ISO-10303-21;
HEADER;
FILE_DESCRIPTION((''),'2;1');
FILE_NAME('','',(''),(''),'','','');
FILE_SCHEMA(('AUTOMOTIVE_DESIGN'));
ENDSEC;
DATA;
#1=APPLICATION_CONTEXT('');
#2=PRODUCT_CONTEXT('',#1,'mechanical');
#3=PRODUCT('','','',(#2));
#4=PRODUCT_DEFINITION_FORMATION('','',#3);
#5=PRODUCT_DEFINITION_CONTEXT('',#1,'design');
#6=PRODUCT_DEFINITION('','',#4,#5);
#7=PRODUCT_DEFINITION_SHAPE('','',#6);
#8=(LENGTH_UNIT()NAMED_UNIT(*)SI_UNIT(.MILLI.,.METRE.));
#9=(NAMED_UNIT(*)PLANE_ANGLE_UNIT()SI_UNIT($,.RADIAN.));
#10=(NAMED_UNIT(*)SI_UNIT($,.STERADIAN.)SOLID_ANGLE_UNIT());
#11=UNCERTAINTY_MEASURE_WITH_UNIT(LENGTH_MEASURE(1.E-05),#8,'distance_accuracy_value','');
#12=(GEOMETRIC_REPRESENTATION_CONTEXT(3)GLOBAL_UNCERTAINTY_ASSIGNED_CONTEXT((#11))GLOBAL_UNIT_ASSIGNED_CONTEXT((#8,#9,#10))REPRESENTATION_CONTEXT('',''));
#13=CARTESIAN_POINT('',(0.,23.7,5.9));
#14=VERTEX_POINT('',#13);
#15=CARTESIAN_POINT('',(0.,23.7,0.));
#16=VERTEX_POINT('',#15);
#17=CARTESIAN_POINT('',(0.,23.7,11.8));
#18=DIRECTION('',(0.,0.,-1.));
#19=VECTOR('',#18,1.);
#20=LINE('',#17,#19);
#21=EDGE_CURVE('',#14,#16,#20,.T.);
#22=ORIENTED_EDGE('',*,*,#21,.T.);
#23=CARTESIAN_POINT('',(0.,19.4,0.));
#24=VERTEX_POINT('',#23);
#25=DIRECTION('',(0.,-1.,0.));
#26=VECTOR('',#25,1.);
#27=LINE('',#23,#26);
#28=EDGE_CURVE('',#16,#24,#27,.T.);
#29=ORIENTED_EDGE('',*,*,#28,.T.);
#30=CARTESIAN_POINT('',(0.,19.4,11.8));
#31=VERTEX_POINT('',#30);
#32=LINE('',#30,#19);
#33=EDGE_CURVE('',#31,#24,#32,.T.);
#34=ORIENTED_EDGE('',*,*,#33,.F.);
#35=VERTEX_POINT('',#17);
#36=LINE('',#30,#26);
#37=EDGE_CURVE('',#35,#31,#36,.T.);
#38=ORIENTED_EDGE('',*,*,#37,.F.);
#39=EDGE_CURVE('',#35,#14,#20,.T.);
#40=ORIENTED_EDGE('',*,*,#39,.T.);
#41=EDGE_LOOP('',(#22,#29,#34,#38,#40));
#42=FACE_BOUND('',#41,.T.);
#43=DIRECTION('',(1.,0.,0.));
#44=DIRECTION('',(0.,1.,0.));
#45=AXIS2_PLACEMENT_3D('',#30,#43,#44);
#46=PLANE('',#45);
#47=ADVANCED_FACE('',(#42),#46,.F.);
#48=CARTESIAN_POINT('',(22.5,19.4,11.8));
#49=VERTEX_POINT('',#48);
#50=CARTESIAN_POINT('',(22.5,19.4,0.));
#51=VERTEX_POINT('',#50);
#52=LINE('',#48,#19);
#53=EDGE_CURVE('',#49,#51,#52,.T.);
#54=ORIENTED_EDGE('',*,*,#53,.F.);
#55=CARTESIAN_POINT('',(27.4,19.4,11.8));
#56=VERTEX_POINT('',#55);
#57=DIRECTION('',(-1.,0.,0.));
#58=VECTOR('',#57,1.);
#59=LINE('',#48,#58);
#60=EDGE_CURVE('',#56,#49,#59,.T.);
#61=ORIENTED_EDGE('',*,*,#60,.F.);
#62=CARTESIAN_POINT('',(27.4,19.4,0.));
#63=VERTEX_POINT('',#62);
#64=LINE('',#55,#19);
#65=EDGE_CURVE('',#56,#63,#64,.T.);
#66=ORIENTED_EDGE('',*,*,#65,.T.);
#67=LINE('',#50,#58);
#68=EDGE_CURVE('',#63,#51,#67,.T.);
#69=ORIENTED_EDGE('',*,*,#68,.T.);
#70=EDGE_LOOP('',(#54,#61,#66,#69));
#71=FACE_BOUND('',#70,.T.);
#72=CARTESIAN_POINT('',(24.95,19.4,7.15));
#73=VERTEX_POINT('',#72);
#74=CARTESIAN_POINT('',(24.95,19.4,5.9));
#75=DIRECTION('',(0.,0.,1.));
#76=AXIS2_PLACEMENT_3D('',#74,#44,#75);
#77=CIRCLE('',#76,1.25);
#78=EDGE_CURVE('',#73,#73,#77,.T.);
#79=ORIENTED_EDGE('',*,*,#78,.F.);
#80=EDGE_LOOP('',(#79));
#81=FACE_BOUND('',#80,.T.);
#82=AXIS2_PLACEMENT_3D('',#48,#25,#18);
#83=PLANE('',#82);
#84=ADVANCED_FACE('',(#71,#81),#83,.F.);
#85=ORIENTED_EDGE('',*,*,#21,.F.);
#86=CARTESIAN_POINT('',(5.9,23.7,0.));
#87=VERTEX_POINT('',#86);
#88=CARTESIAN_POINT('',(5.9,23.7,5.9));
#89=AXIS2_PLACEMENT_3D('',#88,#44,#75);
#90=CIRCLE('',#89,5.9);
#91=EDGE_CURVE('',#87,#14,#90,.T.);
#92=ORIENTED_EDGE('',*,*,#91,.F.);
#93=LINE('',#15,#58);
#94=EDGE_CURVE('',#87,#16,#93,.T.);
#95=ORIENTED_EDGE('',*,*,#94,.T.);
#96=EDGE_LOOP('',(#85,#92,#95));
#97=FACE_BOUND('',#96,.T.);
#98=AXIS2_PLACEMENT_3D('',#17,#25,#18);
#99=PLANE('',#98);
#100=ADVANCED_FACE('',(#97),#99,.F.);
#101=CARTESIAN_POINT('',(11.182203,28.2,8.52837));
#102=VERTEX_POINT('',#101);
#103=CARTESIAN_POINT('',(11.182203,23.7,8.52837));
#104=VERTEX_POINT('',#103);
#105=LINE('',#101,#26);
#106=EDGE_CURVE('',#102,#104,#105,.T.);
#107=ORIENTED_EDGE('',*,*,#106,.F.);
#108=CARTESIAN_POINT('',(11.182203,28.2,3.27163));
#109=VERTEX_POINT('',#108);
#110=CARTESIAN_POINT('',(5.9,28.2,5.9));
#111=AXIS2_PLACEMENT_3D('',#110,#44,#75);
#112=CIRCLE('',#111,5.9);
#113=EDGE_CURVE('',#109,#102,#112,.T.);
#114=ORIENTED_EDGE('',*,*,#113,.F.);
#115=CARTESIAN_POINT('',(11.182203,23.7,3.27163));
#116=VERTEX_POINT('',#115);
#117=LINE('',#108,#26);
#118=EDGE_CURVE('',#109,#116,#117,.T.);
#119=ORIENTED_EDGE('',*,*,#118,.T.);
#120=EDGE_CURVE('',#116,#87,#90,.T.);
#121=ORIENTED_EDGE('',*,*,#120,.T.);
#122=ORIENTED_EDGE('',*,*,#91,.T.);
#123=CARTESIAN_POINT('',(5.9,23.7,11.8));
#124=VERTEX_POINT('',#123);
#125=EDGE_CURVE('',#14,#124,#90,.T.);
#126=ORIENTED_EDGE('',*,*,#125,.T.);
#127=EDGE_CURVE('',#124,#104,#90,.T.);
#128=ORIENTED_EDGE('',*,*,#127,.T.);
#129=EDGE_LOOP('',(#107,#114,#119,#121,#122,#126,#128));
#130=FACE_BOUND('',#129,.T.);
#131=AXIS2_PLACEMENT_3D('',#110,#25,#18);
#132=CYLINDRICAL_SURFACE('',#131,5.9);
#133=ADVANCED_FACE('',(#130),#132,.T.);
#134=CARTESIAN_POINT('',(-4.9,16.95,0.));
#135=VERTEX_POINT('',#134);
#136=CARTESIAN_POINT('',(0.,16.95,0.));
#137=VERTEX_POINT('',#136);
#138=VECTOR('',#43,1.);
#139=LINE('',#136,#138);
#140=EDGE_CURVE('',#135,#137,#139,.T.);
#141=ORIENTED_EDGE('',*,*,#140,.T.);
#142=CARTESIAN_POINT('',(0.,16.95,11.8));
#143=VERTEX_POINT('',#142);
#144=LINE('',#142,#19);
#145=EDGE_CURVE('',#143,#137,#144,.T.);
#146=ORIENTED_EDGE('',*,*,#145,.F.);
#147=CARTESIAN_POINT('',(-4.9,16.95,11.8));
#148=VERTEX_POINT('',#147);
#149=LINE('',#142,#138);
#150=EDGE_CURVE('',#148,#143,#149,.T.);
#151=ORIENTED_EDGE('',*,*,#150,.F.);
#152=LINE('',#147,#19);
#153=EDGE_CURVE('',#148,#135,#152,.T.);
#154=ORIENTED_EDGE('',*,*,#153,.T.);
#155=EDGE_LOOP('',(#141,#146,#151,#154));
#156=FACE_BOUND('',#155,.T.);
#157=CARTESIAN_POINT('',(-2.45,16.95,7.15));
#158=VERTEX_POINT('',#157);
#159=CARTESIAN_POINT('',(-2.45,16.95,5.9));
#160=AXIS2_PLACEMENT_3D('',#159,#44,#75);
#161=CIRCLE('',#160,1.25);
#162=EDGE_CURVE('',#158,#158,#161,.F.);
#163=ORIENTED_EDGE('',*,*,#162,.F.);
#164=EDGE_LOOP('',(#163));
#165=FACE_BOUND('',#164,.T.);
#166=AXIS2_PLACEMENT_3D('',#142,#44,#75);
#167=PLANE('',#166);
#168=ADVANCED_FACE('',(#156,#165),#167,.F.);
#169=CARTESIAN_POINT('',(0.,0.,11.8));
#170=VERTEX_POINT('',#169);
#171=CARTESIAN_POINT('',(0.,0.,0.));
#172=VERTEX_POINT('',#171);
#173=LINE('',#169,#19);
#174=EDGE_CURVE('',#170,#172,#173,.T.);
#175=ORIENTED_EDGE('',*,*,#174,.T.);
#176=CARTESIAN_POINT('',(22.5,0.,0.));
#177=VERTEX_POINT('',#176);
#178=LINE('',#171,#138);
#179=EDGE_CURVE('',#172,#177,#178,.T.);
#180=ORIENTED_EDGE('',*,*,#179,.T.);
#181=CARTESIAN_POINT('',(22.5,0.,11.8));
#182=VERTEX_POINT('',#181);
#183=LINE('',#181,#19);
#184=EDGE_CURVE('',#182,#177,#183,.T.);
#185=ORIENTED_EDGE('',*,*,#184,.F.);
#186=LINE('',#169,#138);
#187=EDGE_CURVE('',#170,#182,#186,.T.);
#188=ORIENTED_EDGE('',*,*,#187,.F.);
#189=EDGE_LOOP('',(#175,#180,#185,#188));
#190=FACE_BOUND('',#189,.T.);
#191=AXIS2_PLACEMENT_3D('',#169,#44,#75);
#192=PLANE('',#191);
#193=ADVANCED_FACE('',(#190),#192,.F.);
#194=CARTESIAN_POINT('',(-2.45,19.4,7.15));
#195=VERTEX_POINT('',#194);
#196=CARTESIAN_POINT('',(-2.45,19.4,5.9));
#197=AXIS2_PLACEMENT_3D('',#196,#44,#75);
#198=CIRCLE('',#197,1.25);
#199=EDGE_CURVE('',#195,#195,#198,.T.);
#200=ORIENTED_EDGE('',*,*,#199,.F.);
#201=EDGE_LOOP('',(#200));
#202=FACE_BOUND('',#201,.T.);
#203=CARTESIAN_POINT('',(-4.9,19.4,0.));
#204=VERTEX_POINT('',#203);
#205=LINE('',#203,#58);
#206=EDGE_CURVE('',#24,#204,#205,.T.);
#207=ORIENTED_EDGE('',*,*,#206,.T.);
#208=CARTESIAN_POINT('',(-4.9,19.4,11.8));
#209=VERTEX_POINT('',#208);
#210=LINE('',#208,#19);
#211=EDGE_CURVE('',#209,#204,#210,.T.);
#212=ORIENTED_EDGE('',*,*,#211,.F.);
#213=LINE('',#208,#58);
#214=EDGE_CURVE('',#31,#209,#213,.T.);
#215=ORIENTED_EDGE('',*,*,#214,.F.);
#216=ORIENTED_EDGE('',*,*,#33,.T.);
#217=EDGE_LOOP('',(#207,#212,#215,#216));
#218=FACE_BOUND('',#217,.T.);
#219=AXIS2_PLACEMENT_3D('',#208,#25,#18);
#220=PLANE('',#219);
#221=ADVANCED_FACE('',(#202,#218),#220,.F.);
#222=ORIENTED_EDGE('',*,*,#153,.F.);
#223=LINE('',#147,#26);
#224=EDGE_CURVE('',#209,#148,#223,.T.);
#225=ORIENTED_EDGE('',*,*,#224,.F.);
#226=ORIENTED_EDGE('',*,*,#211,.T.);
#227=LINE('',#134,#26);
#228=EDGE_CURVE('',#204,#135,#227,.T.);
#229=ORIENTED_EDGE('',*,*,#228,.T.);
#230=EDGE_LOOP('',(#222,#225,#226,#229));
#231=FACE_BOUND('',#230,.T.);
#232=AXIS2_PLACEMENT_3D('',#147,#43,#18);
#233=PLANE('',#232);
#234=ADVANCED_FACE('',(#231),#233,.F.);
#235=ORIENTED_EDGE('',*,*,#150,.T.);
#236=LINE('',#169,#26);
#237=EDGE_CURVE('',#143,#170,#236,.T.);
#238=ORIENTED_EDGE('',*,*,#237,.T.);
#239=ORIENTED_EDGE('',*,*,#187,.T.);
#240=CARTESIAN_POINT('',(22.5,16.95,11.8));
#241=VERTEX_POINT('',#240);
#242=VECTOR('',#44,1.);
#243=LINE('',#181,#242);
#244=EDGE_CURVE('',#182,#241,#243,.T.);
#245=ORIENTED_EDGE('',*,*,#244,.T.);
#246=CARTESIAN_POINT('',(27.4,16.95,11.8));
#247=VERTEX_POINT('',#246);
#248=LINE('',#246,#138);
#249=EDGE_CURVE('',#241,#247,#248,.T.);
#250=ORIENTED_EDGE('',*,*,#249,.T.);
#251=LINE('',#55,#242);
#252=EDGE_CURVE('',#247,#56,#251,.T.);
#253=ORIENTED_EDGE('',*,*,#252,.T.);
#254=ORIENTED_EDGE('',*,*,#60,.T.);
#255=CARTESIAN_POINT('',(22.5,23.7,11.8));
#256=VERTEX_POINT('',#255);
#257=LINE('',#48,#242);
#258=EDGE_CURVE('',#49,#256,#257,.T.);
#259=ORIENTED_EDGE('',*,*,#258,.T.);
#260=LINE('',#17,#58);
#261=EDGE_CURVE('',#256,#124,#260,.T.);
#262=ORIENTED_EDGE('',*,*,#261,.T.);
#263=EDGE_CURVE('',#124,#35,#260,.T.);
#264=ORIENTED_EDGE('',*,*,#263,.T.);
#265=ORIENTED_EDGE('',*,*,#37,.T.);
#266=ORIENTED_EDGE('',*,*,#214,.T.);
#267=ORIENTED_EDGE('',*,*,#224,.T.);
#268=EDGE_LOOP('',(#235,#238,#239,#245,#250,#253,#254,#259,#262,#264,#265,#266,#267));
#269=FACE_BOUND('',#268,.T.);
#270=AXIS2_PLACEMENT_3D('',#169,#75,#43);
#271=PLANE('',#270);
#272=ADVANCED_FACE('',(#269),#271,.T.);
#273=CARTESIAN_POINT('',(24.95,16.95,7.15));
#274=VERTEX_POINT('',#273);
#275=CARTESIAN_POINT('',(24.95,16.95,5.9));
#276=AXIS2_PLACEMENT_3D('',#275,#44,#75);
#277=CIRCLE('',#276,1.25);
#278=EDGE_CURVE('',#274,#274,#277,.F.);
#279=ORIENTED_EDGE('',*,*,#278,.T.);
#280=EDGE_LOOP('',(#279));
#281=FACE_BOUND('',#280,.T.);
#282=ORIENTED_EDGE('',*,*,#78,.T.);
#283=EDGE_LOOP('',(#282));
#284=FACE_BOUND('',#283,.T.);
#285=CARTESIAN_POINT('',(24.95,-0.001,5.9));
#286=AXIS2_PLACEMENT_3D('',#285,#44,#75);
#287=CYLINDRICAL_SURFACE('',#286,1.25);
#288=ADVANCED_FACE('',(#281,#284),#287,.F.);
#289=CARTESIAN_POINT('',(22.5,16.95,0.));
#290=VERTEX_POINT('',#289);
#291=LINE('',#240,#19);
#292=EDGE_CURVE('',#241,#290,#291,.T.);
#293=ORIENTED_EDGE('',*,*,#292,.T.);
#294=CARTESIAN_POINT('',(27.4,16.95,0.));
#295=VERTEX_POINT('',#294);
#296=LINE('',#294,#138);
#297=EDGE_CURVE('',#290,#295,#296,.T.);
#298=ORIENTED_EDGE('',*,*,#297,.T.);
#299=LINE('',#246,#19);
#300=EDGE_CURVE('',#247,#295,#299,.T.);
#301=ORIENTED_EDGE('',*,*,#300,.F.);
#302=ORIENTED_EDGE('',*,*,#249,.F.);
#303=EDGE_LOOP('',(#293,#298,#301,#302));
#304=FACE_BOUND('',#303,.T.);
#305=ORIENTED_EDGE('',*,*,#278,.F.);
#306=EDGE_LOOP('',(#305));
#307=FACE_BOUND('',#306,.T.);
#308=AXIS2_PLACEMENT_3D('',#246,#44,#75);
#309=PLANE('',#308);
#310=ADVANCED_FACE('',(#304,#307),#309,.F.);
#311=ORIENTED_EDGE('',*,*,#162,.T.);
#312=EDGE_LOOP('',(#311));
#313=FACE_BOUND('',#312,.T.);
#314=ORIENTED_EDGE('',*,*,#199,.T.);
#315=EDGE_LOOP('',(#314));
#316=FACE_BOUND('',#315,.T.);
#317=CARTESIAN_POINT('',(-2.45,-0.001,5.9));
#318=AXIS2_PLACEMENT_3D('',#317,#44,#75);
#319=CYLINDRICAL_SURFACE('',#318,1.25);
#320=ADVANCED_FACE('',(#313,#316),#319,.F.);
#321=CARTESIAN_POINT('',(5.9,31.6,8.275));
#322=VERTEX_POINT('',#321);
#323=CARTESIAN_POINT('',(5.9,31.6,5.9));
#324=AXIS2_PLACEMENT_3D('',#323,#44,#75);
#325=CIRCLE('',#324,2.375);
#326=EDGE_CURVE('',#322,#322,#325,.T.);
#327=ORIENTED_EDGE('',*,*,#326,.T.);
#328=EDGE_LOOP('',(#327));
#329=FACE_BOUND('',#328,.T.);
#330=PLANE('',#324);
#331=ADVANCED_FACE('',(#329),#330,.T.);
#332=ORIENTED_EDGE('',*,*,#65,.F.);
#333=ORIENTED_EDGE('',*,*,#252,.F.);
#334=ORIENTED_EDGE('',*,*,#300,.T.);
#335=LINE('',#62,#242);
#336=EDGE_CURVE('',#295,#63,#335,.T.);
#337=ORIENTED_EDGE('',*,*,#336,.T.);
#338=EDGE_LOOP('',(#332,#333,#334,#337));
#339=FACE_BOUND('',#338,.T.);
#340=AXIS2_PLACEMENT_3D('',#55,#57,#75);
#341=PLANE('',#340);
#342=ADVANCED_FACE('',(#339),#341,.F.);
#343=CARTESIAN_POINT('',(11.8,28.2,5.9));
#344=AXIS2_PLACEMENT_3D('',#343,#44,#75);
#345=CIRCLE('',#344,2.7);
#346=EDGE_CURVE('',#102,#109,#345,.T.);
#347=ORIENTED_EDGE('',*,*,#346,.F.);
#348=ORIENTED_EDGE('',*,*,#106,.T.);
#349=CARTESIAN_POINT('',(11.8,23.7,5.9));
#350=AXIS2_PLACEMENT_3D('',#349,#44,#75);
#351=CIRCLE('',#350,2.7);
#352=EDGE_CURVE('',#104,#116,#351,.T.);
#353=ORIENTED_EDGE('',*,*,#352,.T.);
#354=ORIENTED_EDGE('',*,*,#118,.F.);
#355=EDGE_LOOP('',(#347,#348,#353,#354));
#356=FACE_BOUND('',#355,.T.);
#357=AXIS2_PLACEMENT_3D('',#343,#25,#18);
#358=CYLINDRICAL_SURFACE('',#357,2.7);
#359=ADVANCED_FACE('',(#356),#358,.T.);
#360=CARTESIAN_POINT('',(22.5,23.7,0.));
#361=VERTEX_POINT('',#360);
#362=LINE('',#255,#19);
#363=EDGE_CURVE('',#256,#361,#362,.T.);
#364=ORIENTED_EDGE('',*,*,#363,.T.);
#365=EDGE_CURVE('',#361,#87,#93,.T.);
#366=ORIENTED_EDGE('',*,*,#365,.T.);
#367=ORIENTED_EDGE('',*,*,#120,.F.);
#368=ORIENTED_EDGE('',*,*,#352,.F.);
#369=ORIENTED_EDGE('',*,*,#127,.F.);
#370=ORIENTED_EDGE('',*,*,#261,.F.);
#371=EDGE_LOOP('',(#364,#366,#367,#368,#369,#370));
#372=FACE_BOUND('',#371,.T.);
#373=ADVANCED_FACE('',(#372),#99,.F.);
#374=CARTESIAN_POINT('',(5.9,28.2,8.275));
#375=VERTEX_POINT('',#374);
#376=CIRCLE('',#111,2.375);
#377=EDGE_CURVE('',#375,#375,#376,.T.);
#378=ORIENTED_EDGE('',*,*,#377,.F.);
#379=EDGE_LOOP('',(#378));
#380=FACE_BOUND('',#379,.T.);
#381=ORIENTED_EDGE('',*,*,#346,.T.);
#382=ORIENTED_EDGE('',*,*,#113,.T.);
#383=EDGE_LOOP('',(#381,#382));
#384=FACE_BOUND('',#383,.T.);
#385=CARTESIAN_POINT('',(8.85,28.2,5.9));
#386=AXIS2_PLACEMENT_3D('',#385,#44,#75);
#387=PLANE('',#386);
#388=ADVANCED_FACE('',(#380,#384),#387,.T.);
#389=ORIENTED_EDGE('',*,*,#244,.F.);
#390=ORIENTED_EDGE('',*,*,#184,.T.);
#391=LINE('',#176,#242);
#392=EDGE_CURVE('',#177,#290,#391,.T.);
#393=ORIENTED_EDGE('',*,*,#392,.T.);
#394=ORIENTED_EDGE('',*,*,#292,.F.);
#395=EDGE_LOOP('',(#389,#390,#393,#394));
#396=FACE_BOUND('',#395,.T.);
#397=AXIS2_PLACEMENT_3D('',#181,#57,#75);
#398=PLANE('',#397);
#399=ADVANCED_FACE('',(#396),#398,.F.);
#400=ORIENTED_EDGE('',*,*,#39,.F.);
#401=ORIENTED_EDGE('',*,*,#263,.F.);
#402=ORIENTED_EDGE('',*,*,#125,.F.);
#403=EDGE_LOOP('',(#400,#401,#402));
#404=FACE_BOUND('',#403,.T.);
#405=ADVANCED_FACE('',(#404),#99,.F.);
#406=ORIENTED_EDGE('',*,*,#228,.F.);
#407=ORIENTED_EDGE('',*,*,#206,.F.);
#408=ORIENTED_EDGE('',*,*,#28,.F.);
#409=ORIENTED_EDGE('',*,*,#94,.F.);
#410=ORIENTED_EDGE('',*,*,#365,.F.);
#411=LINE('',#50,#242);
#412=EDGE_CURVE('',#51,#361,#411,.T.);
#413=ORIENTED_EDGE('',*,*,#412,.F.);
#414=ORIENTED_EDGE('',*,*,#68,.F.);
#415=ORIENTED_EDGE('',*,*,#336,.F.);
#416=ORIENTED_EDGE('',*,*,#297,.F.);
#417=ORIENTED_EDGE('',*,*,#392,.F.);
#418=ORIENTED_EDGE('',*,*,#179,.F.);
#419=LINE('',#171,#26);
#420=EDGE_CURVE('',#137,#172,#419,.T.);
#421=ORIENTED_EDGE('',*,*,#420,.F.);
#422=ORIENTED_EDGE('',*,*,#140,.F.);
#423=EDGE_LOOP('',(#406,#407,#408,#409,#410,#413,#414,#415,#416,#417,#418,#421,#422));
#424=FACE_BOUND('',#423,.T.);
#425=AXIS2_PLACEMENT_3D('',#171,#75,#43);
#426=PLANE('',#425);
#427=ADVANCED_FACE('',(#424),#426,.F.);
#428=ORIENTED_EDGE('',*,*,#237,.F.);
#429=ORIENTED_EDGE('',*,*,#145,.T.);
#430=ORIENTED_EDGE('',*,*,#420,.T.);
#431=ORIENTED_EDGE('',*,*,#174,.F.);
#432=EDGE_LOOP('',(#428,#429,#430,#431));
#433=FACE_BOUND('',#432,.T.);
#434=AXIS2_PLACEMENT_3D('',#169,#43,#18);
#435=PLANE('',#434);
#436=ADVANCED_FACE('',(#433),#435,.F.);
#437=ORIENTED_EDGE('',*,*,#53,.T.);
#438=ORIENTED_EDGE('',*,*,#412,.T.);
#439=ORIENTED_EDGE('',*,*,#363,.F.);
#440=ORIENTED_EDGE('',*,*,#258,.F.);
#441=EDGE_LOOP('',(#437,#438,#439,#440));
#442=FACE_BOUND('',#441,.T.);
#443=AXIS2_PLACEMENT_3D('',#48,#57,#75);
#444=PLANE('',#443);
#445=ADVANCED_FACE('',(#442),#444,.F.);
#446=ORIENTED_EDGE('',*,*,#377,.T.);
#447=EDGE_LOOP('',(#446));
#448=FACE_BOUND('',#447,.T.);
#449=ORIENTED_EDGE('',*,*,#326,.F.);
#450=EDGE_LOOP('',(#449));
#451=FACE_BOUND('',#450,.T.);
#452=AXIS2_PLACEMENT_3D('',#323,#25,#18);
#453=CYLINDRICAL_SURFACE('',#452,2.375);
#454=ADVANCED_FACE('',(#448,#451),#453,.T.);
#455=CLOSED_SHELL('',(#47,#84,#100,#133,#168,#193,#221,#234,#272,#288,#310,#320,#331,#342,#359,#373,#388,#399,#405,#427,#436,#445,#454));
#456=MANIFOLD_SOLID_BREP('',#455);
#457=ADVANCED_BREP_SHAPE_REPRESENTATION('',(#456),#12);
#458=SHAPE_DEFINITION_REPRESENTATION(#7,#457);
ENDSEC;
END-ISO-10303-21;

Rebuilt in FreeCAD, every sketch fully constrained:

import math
import FreeCAD as App
import Part
import Sketcher


def add_polygon(sketch, points):
    """Adds a closed chain of lines whose ends are joined by coincident constraints."""
    first, n = sketch.GeometryCount, len(points)
    for a, b in zip(points, points[1:] + points[:1]):
        sketch.addGeometry(Part.LineSegment(App.Vector(*a, 0), App.Vector(*b, 0)), False)
    for i in range(n):
        sketch.addConstraint(Sketcher.Constraint("Coincident", first + i, 2, first + (i + 1) % n, 1))

doc = App.newDocument("Part")
body = doc.addObject("PartDesign::Body", "Body")

sketch1 = body.newObject("Sketcher::SketchObject", "Sketch")
sketch1.AttachmentSupport = (doc.getObject("XY_Plane"), [""])
sketch1.MapMode = "FlatFace"
add_polygon(sketch1, [(0, 0), (22.5, 0), (22.5, 16.95), (27.4, 16.95), (27.4, 19.4), (22.5, 19.4), (22.5, 23.7), (0, 23.7), (0, 19.4), (-4.9, 19.4), (-4.9, 16.95), (0, 16.95)])
sketch1.addConstraint(Sketcher.Constraint("Horizontal", 0))
sketch1.addConstraint(Sketcher.Constraint("Vertical", 1))
sketch1.addConstraint(Sketcher.Constraint("Horizontal", 2))
sketch1.addConstraint(Sketcher.Constraint("Vertical", 3))
sketch1.addConstraint(Sketcher.Constraint("Horizontal", 4))
sketch1.addConstraint(Sketcher.Constraint("Vertical", 5))
sketch1.addConstraint(Sketcher.Constraint("Horizontal", 6))
sketch1.addConstraint(Sketcher.Constraint("Vertical", 7))
sketch1.addConstraint(Sketcher.Constraint("Horizontal", 8))
sketch1.addConstraint(Sketcher.Constraint("Vertical", 9))
sketch1.addConstraint(Sketcher.Constraint("Horizontal", 10))
sketch1.addConstraint(Sketcher.Constraint("Vertical", 11))
sketch1.addConstraint(Sketcher.Constraint("Coincident", 11, 2, -1, 1))
sketch1.addConstraint(Sketcher.Constraint("PointOnObject", 6, 2, -2))
sketch1.addConstraint(Sketcher.Constraint("Horizontal", 4, 2, 7, 2))
sketch1.addConstraint(Sketcher.Constraint("Horizontal", 2, 2, 9, 2))
sketch1.addConstraint(Sketcher.Constraint("Vertical", 1, 2, 4, 2))
sketch1.addConstraint(Sketcher.Constraint("Equal", 4, 8))
sketch1.addConstraint(Sketcher.Constraint("DistanceX", 0, 1, 0, 2, 22.5))
sketch1.addConstraint(Sketcher.Constraint("DistanceX", 2, 1, 2, 2, 4.9))
sketch1.addConstraint(Sketcher.Constraint("DistanceY", 5, 1, 5, 2, 4.3))
sketch1.addConstraint(Sketcher.Constraint("DistanceY", 1, 1, 1, 2, 16.95))
sketch1.addConstraint(Sketcher.Constraint("DistanceY", 3, 1, 3, 2, 2.45))
pad1 = body.newObject("PartDesign::Pad", "Pad")
pad1.Profile = sketch1
pad1.Length = 11.8

sketch2 = body.newObject("Sketcher::SketchObject", "Sketch001")
sketch2.AttachmentSupport = (doc.getObject("XZ_Plane"), [""])
sketch2.MapMode = "FlatFace"
sketch2.AttachmentOffset = App.Placement(App.Vector(0, 0, -23.7), App.Rotation())
sketch2.addGeometry(Part.ArcOfCircle(Part.Circle(App.Vector(5.9, 5.9, 0), App.Vector(0, 0, 1), 5.9), math.radians(26.454462), math.radians(333.545538)), False)
sketch2.addGeometry(Part.ArcOfCircle(Part.Circle(App.Vector(11.8, 5.9, 0), App.Vector(0, 0, 1), 2.7), math.radians(-103.227231), math.radians(103.227231)), False)
sketch2.addConstraint(Sketcher.Constraint("Coincident", 0, 1, 1, 2))
sketch2.addConstraint(Sketcher.Constraint("Coincident", 1, 1, 0, 2))
sketch2.addConstraint(Sketcher.Constraint("Horizontal", 0, 3, 1, 3))
sketch2.addConstraint(Sketcher.Constraint("Radius", 0, 5.9))
sketch2.addConstraint(Sketcher.Constraint("Radius", 1, 2.7))
sketch2.addConstraint(Sketcher.Constraint("DistanceX", -1, 1, 0, 3, 5.9))
sketch2.addConstraint(Sketcher.Constraint("DistanceY", -1, 1, 0, 3, 5.9))
sketch2.addConstraint(Sketcher.Constraint("DistanceX", -1, 1, 1, 3, 11.8))
pad2 = body.newObject("PartDesign::Pad", "Pad001")
pad2.Profile = sketch2
pad2.Length = 4.5
pad2.Reversed = True

sketch3 = body.newObject("Sketcher::SketchObject", "Sketch002")
sketch3.AttachmentSupport = (doc.getObject("XZ_Plane"), [""])
sketch3.MapMode = "FlatFace"
sketch3.AttachmentOffset = App.Placement(App.Vector(0, 0, -28.2), App.Rotation())
sketch3.addGeometry(Part.Circle(App.Vector(5.9, 5.9, 0), App.Vector(0, 0, 1), 2.375), False)
sketch3.addConstraint(Sketcher.Constraint("Diameter", 0, 4.75))
sketch3.addConstraint(Sketcher.Constraint("DistanceX", -1, 1, 0, 3, 5.9))
sketch3.addConstraint(Sketcher.Constraint("DistanceY", -1, 1, 0, 3, 5.9))
pad3 = body.newObject("PartDesign::Pad", "Pad002")
pad3.Profile = sketch3
pad3.Length = 3.4
pad3.Reversed = True

sketch4 = body.newObject("Sketcher::SketchObject", "Sketch003")
sketch4.AttachmentSupport = (doc.getObject("XZ_Plane"), [""])
sketch4.MapMode = "FlatFace"
sketch4.AttachmentOffset = App.Placement(App.Vector(0, 0, -19.4), App.Rotation())
sketch4.addGeometry(Part.Circle(App.Vector(-2.45, 5.9, 0), App.Vector(0, 0, 1), 1.25), False)
sketch4.addConstraint(Sketcher.Constraint("Diameter", 0, 2.5))
sketch4.addConstraint(Sketcher.Constraint("DistanceY", -1, 1, 0, 3, 5.9))
sketch4.addConstraint(Sketcher.Constraint("DistanceX", 0, 3, -1, 1, 2.45))
pocket1 = body.newObject("PartDesign::Pocket", "Pocket")
pocket1.Profile = sketch4
pocket1.Type = "UpToFirst"
pocket1.Reversed = True

sketch5 = body.newObject("Sketcher::SketchObject", "Sketch004")
sketch5.AttachmentSupport = (doc.getObject("XZ_Plane"), [""])
sketch5.MapMode = "FlatFace"
sketch5.AttachmentOffset = App.Placement(App.Vector(0, 0, -19.4), App.Rotation())
sketch5.addGeometry(Part.Circle(App.Vector(24.95, 5.9, 0), App.Vector(0, 0, 1), 1.25), False)
sketch5.addConstraint(Sketcher.Constraint("Diameter", 0, 2.5))
sketch5.addConstraint(Sketcher.Constraint("DistanceY", -1, 1, 0, 3, 5.9))
sketch5.addConstraint(Sketcher.Constraint("DistanceX", -1, 1, 0, 3, 24.95))
pocket2 = body.newObject("PartDesign::Pocket", "Pocket001")
pocket2.Profile = sketch5
pocket2.Type = "UpToFirst"
pocket2.Reversed = True

doc.recompute()
